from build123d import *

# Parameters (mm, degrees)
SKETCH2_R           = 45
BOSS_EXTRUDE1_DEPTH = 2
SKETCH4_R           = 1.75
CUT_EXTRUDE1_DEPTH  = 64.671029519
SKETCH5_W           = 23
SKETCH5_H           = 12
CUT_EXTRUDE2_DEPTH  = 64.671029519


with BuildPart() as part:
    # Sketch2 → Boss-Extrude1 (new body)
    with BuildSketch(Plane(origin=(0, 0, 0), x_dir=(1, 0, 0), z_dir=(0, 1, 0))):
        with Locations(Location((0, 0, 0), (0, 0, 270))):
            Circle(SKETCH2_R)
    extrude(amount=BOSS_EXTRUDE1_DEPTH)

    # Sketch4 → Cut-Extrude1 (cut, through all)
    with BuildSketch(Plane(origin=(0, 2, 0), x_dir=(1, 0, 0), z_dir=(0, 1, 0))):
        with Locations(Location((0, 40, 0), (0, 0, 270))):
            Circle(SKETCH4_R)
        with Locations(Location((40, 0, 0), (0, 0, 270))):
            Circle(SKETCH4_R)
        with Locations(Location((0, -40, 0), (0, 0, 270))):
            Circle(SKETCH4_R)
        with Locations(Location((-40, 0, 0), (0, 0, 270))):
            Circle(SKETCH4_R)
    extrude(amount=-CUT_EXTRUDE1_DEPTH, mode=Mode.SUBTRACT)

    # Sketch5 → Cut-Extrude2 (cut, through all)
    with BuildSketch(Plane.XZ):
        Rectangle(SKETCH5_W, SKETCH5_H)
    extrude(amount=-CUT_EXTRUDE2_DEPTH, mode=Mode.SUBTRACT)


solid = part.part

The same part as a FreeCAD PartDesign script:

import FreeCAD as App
import Part
import Sketcher
Q = App.Units.Quantity


def add_polygon(sketch, points):
    """Adds a closed chain of lines whose ends are joined by coincident constraints."""
    first, n = sketch.GeometryCount, len(points)
    for a, b in zip(points, points[1:] + points[:1]):
        sketch.addGeometry(Part.LineSegment(App.Vector(*a, 0), App.Vector(*b, 0)), False)
    for i in range(n):
        sketch.addConstraint(Sketcher.Constraint("Coincident", first + i, 2, first + (i + 1) % n, 1))

doc = App.newDocument("Part")
params = doc.addObject("Spreadsheet::Sheet", "Params")
for row, (alias, value) in enumerate([
    ("sketch1_diameter", "90 mm"),
    ("pad1_length", "2 mm"),
    ("sketch2_diameter", "3.5 mm"),
    ("sketch3_width", "23 mm"),
    ("sketch3_height", "12 mm"),
], start=1):
    params.set(f"A{row}", alias)
    params.set(f"B{row}", "=" + value)
    params.setAlias(f"B{row}", alias)

body = doc.addObject("PartDesign::Body", "Body")

# Sketch on XZ plane
sketch1 = doc.addObject("Sketcher::SketchObject", "Sketch")
body.addObject(sketch1)
sketch1.AttachmentSupport = (doc.XZ_Plane, [""])
sketch1.MapMode = "FlatFace"
sketch1.addGeometry(Part.Circle(App.Vector(0, 0, 0), App.Vector(0, 0, 1), 45), False)
sketch1.addConstraint([
    Sketcher.Constraint("Coincident", 0, 3, -1, 1),
    Sketcher.Constraint("Diameter", 0, Q("90 mm")),
])
sketch1.setExpression("Constraints[1]", "Params.sketch1_diameter")
pad1 = doc.addObject("PartDesign::Pad", "Pad")
body.addObject(pad1)
pad1.Profile = sketch1
pad1.setExpression("Length", "Params.pad1_length")
pad1.Reversed = True

# Sketch on XZ plane
sketch2 = doc.addObject("Sketcher::SketchObject", "Sketch001")
body.addObject(sketch2)
sketch2.AttachmentSupport = (doc.XZ_Plane, [""])
sketch2.MapMode = "FlatFace"
sketch2.AttachmentOffset = App.Placement(App.Vector(0, 0, -2), App.Rotation())
sketch2.addGeometry([
    Part.Circle(App.Vector(0, -40, 0), App.Vector(0, 0, 1), 1.75),
    Part.Circle(App.Vector(40, 0, 0), App.Vector(0, 0, 1), 1.75),
    Part.Circle(App.Vector(0, 40, 0), App.Vector(0, 0, 1), 1.75),
    Part.Circle(App.Vector(-40, 0, 0), App.Vector(0, 0, 1), 1.75),
], False)
sketch2.addConstraint([
    Sketcher.Constraint("Equal", 0, 1),
    Sketcher.Constraint("Equal", 1, 2),
    Sketcher.Constraint("Equal", 2, 3),
    Sketcher.Constraint("Symmetric", 0, 3, 2, 3, -1, 1),
    Sketcher.Constraint("Symmetric", 1, 3, 3, 3, -1, 1),
    Sketcher.Constraint("PointOnObject", 0, 3, -2),
    Sketcher.Constraint("PointOnObject", 1, 3, -1),
    Sketcher.Constraint("Diameter", 0, Q("3.5 mm")),
    Sketcher.Constraint("DistanceY", 0, 3, -1, 1, Q("40 mm")),
    Sketcher.Constraint("DistanceX", -1, 1, 1, 3, Q("40 mm")),
])
sketch2.setExpression("Constraints[7]", "Params.sketch2_diameter")
pocket1 = doc.addObject("PartDesign::Pocket", "Pocket")
body.addObject(pocket1)
pocket1.Profile = sketch2
pocket1.Type = "ThroughAll"
pocket1.Reversed = True

# Sketch on XZ plane
sketch3 = doc.addObject("Sketcher::SketchObject", "Sketch002")
body.addObject(sketch3)
sketch3.AttachmentSupport = (doc.XZ_Plane, [""])
sketch3.MapMode = "FlatFace"
add_polygon(sketch3, [(-11.5, 6), (-11.5, -6), (11.5, -6), (11.5, 6)])  # lines 0-3
sketch3.addConstraint([
    Sketcher.Constraint("Vertical", 0),
    Sketcher.Constraint("Horizontal", 1),
    Sketcher.Constraint("Vertical", 2),
    Sketcher.Constraint("Horizontal", 3),
    Sketcher.Constraint("Symmetric", 0, 2, 2, 2, -1, 1),
    Sketcher.Constraint("DistanceX", 1, 1, 1, 2, Q("23 mm")),
    Sketcher.Constraint("DistanceY", 0, 2, 0, 1, Q("12 mm")),
])
sketch3.setExpression("Constraints[9]", "Params.sketch3_width")
sketch3.setExpression("Constraints[10]", "Params.sketch3_height")
pocket2 = doc.addObject("PartDesign::Pocket", "Pocket001")
body.addObject(pocket2)
pocket2.Profile = sketch3
pocket2.Type = "ThroughAll"

doc.recompute()
